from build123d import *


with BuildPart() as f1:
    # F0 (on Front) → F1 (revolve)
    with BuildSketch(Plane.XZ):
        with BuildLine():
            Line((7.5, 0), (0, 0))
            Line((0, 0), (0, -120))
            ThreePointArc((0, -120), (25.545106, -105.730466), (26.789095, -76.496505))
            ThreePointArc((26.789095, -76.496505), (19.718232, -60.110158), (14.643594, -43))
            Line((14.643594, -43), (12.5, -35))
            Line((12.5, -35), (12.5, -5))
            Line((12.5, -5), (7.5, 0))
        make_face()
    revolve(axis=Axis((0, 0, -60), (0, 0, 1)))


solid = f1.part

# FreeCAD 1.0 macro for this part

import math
import FreeCAD as App
import Part
import Sketcher
from FreeCAD import Vector
Q = App.Units.Quantity

doc = App.newDocument("Part")
body = doc.addObject("PartDesign::Body", "Body")

sketch1 = doc.addObject("Sketcher::SketchObject", "Sketch")
body.addObject(sketch1)
sketch1.AttachmentSupport = (doc.XZ_Plane, [""])
sketch1.MapMode = "FlatFace"
sketch1.addGeometry([
    Part.LineSegment(Vector(8, 0, 0), Vector(0, 0, 0)),
    Part.LineSegment(Vector(0, 0, 0), Vector(0, -120, 0)),
    Part.ArcOfCircle(Part.Circle(Vector(0, -90, 0), Vector(0, 0, 1), 30), math.radians(-90), math.radians(27)),
    Part.ArcOfCircle(Part.Circle(Vector(161, -9, 0), Vector(0, 0, 1), 150), math.radians(-166.89), math.radians(-153.25)),
    Part.LineSegment(Vector(15, -43, 0), Vector(12, -35, 0)),
    Part.LineSegment(Vector(12, -35, 0), Vector(12, -5, 0)),
    Part.LineSegment(Vector(12, -5, 0), Vector(8, 0, 0)),
], False)
sketch1.addConstraint([
    Sketcher.Constraint("Coincident", 0, 2, 1, 1),
    Sketcher.Constraint("Coincident", 1, 2, 2, 1),
    Sketcher.Constraint("Tangent", 2, 2, 3, 2),
    Sketcher.Constraint("Coincident", 3, 1, 4, 1),
    Sketcher.Constraint("Coincident", 4, 2, 5, 1),
    Sketcher.Constraint("Coincident", 5, 2, 6, 1),
    Sketcher.Constraint("Coincident", 6, 2, 0, 1),
    Sketcher.Constraint("Horizontal", 0),
    Sketcher.Constraint("Vertical", 1),
    Sketcher.Constraint("Vertical", 5),
    Sketcher.Constraint("Coincident", 0, 2, -1, 1),
    Sketcher.Constraint("PointOnObject", 2, 3, -2),
    Sketcher.Constraint("Radius", 2, Q("30 mm")),
    Sketcher.Constraint("DistanceY", 1, 2, 1, 1, Q("120 mm")),
    Sketcher.Constraint("DistanceY", 5, 1, 5, 2, Q("30 mm")),
    Sketcher.Constraint("Angle", 4, Q("105.000003 deg")),
    Sketcher.Constraint("Angle", 6, Q("135 deg")),
    Sketcher.Constraint("DistanceX", 0, 2, 0, 1, Q("7.5 mm")),
    Sketcher.Constraint("DistanceY", 3, 1, -1, 1, Q("43 mm")),
    Sketcher.Constraint("DistanceY", 4, 2, -1, 1, Q("35 mm")),
    Sketcher.Constraint("Radius", 3, Q("149.99993 mm")),
])
revolution = doc.addObject("PartDesign::Revolution", "Revolution")
body.addObject(revolution)
revolution.Profile = sketch1
revolution.ReferenceAxis = (sketch1, ["V_Axis"])
revolution.Angle = 360

doc.recompute()
